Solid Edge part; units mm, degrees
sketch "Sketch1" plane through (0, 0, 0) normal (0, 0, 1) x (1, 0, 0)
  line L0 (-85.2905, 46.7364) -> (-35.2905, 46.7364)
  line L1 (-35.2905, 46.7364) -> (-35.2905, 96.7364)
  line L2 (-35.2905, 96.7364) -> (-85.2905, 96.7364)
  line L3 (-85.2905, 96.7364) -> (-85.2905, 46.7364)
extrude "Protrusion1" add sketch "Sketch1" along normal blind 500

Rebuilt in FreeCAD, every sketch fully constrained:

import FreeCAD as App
import Part
import Sketcher

V = App.Vector

doc = App.newDocument("Part")
body = doc.addObject("PartDesign::Body", "Body")

# Sketch on XY plane
sketch1 = body.newObject("Sketcher::SketchObject", "Sketch")
sketch1.AttachmentSupport = (doc.getObject("XY_Plane"), [""])
sketch1.MapMode = "FlatFace"
sketch1.addGeometry(Part.LineSegment(V(-85.2905, 96.7364, 0), V(-85.2905, 46.7364, 0)), False)
sketch1.addGeometry(Part.LineSegment(V(-85.2905, 46.7364, 0), V(-35.2905, 46.7364, 0)), False)
sketch1.addGeometry(Part.LineSegment(V(-35.2905, 46.7364, 0), V(-35.2905, 96.7364, 0)), False)
sketch1.addGeometry(Part.LineSegment(V(-35.2905, 96.7364, 0), V(-85.2905, 96.7364, 0)), False)
sketch1.addConstraint(Sketcher.Constraint("Coincident", 0, 2, 1, 1))
sketch1.addConstraint(Sketcher.Constraint("Coincident", 1, 2, 2, 1))
sketch1.addConstraint(Sketcher.Constraint("Coincident", 2, 2, 3, 1))
sketch1.addConstraint(Sketcher.Constraint("Coincident", 3, 2, 0, 1))
sketch1.addConstraint(Sketcher.Constraint("Vertical", 0))
sketch1.addConstraint(Sketcher.Constraint("Horizontal", 1))
sketch1.addConstraint(Sketcher.Constraint("Vertical", 2))
sketch1.addConstraint(Sketcher.Constraint("Horizontal", 3))
sketch1.addConstraint(Sketcher.Constraint("Equal", 3, 0))
sketch1.addConstraint(Sketcher.Constraint("DistanceX", 1, 1, 1, 2, 50.0))
sketch1.addConstraint(Sketcher.Constraint("DistanceX", 0, 2, -1, 1, 85.2905))
sketch1.addConstraint(Sketcher.Constraint("DistanceY", -1, 1, 0, 2, 46.7364))
pad1 = body.newObject("PartDesign::Pad", "Pad")
pad1.Profile = sketch1
pad1.Length = 500

doc.recompute()
